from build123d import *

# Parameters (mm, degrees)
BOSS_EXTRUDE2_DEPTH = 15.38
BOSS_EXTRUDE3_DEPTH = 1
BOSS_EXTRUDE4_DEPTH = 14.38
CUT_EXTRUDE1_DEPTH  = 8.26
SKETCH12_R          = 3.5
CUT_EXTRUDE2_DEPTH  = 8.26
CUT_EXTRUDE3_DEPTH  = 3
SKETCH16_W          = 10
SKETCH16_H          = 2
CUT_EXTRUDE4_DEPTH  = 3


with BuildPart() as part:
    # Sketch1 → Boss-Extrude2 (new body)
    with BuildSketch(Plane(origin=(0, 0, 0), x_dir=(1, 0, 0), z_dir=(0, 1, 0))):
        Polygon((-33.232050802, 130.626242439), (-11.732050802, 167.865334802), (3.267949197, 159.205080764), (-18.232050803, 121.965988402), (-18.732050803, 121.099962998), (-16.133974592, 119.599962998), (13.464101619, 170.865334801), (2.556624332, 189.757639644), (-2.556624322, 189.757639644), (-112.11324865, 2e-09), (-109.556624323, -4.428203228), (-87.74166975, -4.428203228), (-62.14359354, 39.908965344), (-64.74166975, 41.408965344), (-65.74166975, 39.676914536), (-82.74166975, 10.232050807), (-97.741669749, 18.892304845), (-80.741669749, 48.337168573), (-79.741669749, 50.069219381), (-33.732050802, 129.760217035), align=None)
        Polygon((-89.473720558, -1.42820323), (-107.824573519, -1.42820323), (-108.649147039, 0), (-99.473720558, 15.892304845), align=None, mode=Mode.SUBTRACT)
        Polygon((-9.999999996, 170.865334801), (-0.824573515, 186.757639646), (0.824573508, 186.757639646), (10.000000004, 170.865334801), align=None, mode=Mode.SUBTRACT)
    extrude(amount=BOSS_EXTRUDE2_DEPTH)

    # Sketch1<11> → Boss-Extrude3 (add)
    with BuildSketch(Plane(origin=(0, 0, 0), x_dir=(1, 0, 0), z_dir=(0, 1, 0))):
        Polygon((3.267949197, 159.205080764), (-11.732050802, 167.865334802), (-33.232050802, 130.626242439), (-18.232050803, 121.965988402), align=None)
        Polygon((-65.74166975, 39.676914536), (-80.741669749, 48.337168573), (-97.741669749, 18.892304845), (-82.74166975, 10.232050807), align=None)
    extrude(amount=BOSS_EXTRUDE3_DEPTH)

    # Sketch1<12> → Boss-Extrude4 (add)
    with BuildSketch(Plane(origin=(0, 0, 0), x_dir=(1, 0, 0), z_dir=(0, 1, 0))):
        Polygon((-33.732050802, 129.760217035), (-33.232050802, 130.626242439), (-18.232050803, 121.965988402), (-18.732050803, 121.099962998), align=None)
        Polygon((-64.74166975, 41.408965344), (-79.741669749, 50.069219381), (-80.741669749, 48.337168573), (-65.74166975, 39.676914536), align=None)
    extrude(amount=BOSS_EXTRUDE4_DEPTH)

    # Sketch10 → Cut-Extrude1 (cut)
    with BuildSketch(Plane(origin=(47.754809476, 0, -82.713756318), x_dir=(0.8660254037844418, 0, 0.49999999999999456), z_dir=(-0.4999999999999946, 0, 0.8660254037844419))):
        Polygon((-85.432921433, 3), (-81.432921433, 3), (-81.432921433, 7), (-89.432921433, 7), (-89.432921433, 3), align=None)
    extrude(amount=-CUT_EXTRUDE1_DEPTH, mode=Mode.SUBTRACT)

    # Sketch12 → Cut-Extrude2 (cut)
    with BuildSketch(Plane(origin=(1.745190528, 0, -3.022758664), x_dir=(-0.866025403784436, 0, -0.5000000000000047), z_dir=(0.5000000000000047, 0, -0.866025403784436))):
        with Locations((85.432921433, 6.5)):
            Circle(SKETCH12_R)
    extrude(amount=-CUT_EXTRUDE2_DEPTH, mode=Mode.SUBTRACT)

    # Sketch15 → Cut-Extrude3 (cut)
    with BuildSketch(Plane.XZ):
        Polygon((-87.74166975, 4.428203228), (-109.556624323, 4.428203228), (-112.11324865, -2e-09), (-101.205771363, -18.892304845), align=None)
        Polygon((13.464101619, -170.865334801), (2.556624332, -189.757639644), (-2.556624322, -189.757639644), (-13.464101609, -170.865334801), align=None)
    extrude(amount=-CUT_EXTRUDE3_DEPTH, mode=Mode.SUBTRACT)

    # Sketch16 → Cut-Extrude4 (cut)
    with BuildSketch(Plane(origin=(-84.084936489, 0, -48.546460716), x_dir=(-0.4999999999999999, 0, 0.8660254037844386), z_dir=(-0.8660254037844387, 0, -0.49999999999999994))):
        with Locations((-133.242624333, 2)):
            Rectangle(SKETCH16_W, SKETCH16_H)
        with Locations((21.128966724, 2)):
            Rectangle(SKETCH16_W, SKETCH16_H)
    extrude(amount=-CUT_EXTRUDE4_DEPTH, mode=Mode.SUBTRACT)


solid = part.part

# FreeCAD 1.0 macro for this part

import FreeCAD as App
import Part
import Sketcher
Q = App.Units.Quantity

doc = App.newDocument("Part")
body = doc.addObject("PartDesign::Body", "Body")

sketch1 = doc.addObject("Sketcher::SketchObject", "Sketch")
body.addObject(sketch1)
sketch1.AttachmentSupport = (doc.XZ_Plane, [""])
sketch1.MapMode = "FlatFace"
sketch1.addGeometry(Part.LineSegment(App.Vector(-33.2, -130.6, 0), App.Vector(-11.7, -167.9, 0)), False)
sketch1.addGeometry(Part.LineSegment(App.Vector(-11.7, -167.9, 0), App.Vector(3.3, -159.2, 0)), False)
sketch1.addGeometry(Part.LineSegment(App.Vector(3.3, -159.2, 0), App.Vector(-18.2, -122, 0)), False)
sketch1.addGeometry(Part.LineSegment(App.Vector(-18.2, -122, 0), App.Vector(-18.7, -121.1, 0)), False)
sketch1.addGeometry(Part.LineSegment(App.Vector(-18.7, -121.1, 0), App.Vector(-16.1, -119.6, 0)), False)
sketch1.addGeometry(Part.LineSegment(App.Vector(-16.1, -119.6, 0), App.Vector(13.5, -170.9, 0)), False)
sketch1.addGeometry(Part.LineSegment(App.Vector(13.5, -170.9, 0), App.Vector(2.6, -189.8, 0)), False)
sketch1.addGeometry(Part.LineSegment(App.Vector(2.6, -189.8, 0), App.Vector(-2.6, -189.8, 0)), False)
sketch1.addGeometry(Part.LineSegment(App.Vector(-2.6, -189.8, 0), App.Vector(-112.1, 0, 0)), False)
sketch1.addGeometry(Part.LineSegment(App.Vector(-112.1, 0, 0), App.Vector(-109.6, 4.4, 0)), False)
sketch1.addGeometry(Part.LineSegment(App.Vector(-109.6, 4.4, 0), App.Vector(-87.7, 4.4, 0)), False)
sketch1.addGeometry(Part.LineSegment(App.Vector(-87.7, 4.4, 0), App.Vector(-62.1, -39.9, 0)), False)
sketch1.addGeometry(Part.LineSegment(App.Vector(-62.1, -39.9, 0), App.Vector(-64.7, -41.4, 0)), False)
sketch1.addGeometry(Part.LineSegment(App.Vector(-64.7, -41.4, 0), App.Vector(-65.7, -39.7, 0)), False)
sketch1.addGeometry(Part.LineSegment(App.Vector(-65.7, -39.7, 0), App.Vector(-82.7, -10.2, 0)), False)
sketch1.addGeometry(Part.LineSegment(App.Vector(-82.7, -10.2, 0), App.Vector(-97.7, -18.9, 0)), False)
sketch1.addGeometry(Part.LineSegment(App.Vector(-97.7, -18.9, 0), App.Vector(-80.7, -48.3, 0)), False)
sketch1.addGeometry(Part.LineSegment(App.Vector(-80.7, -48.3, 0), App.Vector(-79.7, -50.1, 0)), False)
sketch1.addGeometry(Part.LineSegment(App.Vector(-79.7, -50.1, 0), App.Vector(-33.7, -129.8, 0)), False)
sketch1.addGeometry(Part.LineSegment(App.Vector(-33.7, -129.8, 0), App.Vector(-33.2, -130.6, 0)), False)
sketch1.addGeometry(Part.LineSegment(App.Vector(-99.5, -15.9, 0), App.Vector(-89.5, 1.4, 0)), False)
sketch1.addGeometry(Part.LineSegment(App.Vector(-89.5, 1.4, 0), App.Vector(-107.8, 1.4, 0)), False)
sketch1.addGeometry(Part.LineSegment(App.Vector(-107.8, 1.4, 0), App.Vector(-108.6, 0, 0)), False)
sketch1.addGeometry(Part.LineSegment(App.Vector(-108.6, 0, 0), App.Vector(-99.5, -15.9, 0)), False)
sketch1.addGeometry(Part.LineSegment(App.Vector(10, -170.9, 0), App.Vector(-10, -170.9, 0)), False)
sketch1.addGeometry(Part.LineSegment(App.Vector(-10, -170.9, 0), App.Vector(-0.8, -186.8, 0)), False)
sketch1.addGeometry(Part.LineSegment(App.Vector(-0.8, -186.8, 0), App.Vector(0.8, -186.8, 0)), False)
sketch1.addGeometry(Part.LineSegment(App.Vector(0.8, -186.8, 0), App.Vector(10, -170.9, 0)), False)
sketch1.addConstraint(Sketcher.Constraint("Coincident", 0, 2, 1, 1))
sketch1.addConstraint(Sketcher.Constraint("Coincident", 1, 2, 2, 1))
sketch1.addConstraint(Sketcher.Constraint("Coincident", 2, 2, 3, 1))
sketch1.addConstraint(Sketcher.Constraint("Coincident", 3, 2, 4, 1))
sketch1.addConstraint(Sketcher.Constraint("Coincident", 4, 2, 5, 1))
sketch1.addConstraint(Sketcher.Constraint("Coincident", 5, 2, 6, 1))
sketch1.addConstraint(Sketcher.Constraint("Coincident", 6, 2, 7, 1))
sketch1.addConstraint(Sketcher.Constraint("Coincident", 7, 2, 8, 1))
sketch1.addConstraint(Sketcher.Constraint("Coincident", 8, 2, 9, 1))
sketch1.addConstraint(Sketcher.Constraint("Coincident", 9, 2, 10, 1))
sketch1.addConstraint(Sketcher.Constraint("Coincident", 10, 2, 11, 1))
sketch1.addConstraint(Sketcher.Constraint("Coincident", 11, 2, 12, 1))
sketch1.addConstraint(Sketcher.Constraint("Coincident", 12, 2, 13, 1))
sketch1.addConstraint(Sketcher.Constraint("Coincident", 13, 2, 14, 1))
sketch1.addConstraint(Sketcher.Constraint("Coincident", 14, 2, 15, 1))
sketch1.addConstraint(Sketcher.Constraint("Coincident", 15, 2, 16, 1))
sketch1.addConstraint(Sketcher.Constraint("Coincident", 16, 2, 17, 1))
sketch1.addConstraint(Sketcher.Constraint("Coincident", 17, 2, 18, 1))
sketch1.addConstraint(Sketcher.Constraint("Coincident", 18, 2, 19, 1))
sketch1.addConstraint(Sketcher.Constraint("Coincident", 19, 2, 0, 1))
sketch1.addConstraint(Sketcher.Constraint("Coincident", 20, 2, 21, 1))
sketch1.addConstraint(Sketcher.Constraint("Coincident", 21, 2, 22, 1))
sketch1.addConstraint(Sketcher.Constraint("Coincident", 22, 2, 23, 1))
sketch1.addConstraint(Sketcher.Constraint("Coincident", 23, 2, 20, 1))
sketch1.addConstraint(Sketcher.Constraint("Coincident", 24, 2, 25, 1))
sketch1.addConstraint(Sketcher.Constraint("Coincident", 25, 2, 26, 1))
sketch1.addConstraint(Sketcher.Constraint("Coincident", 26, 2, 27, 1))
sketch1.addConstraint(Sketcher.Constraint("Coincident", 27, 2, 24, 1))
sketch1.addConstraint(Sketcher.Constraint("Horizontal", 7))
sketch1.addConstraint(Sketcher.Constraint("Horizontal", 10))
sketch1.addConstraint(Sketcher.Constraint("Horizontal", 21))
sketch1.addConstraint(Sketcher.Constraint("Horizontal", 24))
sketch1.addConstraint(Sketcher.Constraint("Horizontal", 26))
sketch1.addConstraint(Sketcher.Constraint("PointOnObject", 8, 2, -1))
sketch1.addConstraint(Sketcher.Constraint("PointOnObject", 22, 2, -1))
sketch1.addConstraint(Sketcher.Constraint("Perpendicular", 0, 1))
sketch1.addConstraint(Sketcher.Constraint("Perpendicular", 1, 2))
sketch1.addConstraint(Sketcher.Constraint("Parallel", 2, 3))
sketch1.addConstraint(Sketcher.Constraint("Perpendicular", 3, 4))
sketch1.addConstraint(Sketcher.Constraint("Perpendicular", 4, 5))
sketch1.addConstraint(Sketcher.Constraint("Parallel", 5, 8))
sketch1.addConstraint(Sketcher.Constraint("Parallel", 6, 9))
sketch1.addConstraint(Sketcher.Constraint("Parallel", 8, 11))
sketch1.addConstraint(Sketcher.Constraint("Perpendicular", 11, 12))
sketch1.addConstraint(Sketcher.Constraint("Perpendicular", 12, 13))
sketch1.addConstraint(Sketcher.Constraint("Parallel", 13, 14))
sketch1.addConstraint(Sketcher.Constraint("Perpendicular", 14, 15))
sketch1.addConstraint(Sketcher.Constraint("Perpendicular", 15, 16))
sketch1.addConstraint(Sketcher.Constraint("Parallel", 16, 17))
sketch1.addConstraint(Sketcher.Constraint("Parallel", 17, 18))
sketch1.addConstraint(Sketcher.Constraint("Parallel", 18, 19))
sketch1.addConstraint(Sketcher.Constraint("Parallel", 9, 20))
sketch1.addConstraint(Sketcher.Constraint("Parallel", 20, 22))
sketch1.addConstraint(Sketcher.Constraint("Parallel", 19, 23))
sketch1.addConstraint(Sketcher.Constraint("Parallel", 23, 25))
sketch1.addConstraint(Sketcher.Constraint("Parallel", 22, 27))
sketch1.addConstraint(Sketcher.Constraint("Horizontal", 5, 2, 24, 2))
sketch1.addConstraint(Sketcher.Constraint("Equal", 0, 2))
sketch1.addConstraint(Sketcher.Constraint("Equal", 4, 12))
sketch1.addConstraint(Sketcher.Constraint("Equal", 1, 15))
sketch1.addConstraint(Sketcher.Constraint("Equal", 14, 16))
sketch1.addConstraint(Sketcher.Constraint("Equal", 13, 17))
sketch1.addConstraint(Sketcher.Constraint("Equal", 3, 19))
sketch1.addConstraint(Sketcher.Constraint("Equal", 23, 25))
sketch1.addConstraint(Sketcher.Constraint("Equal", 25, 27))
sketch1.addConstraint(Sketcher.Constraint("DistanceX", 24, 2, 24, 1, 20.0))
sketch1.addConstraint(Sketcher.Constraint("Angle", 0, Q("-60 deg")))
sketch1.addConstraint(Sketcher.Constraint("Distance", 0, 43.0))
sketch1.addConstraint(Sketcher.Constraint("Distance", 3, 1.0))
sketch1.addConstraint(Sketcher.Constraint("Distance", 4, 3.0))
sketch1.addConstraint(Sketcher.Constraint("Distance", 13, 2.0))
sketch1.addConstraint(Sketcher.Constraint("Distance", 14, 34.0))
sketch1.addConstraint(Sketcher.Constraint("Distance", 20, 20.0))
sketch1.addConstraint(Sketcher.Constraint("DistanceX", 24, 2, -1, 1, 10.0))
sketch1.addConstraint(Sketcher.Constraint("DistanceX", 0, 2, 1, 2, 15.0))
sketch1.addConstraint(Sketcher.Constraint("DistanceY", 5, 2, 0, 2, 3.0))
sketch1.addConstraint(Sketcher.Constraint("DistanceX", 10, 2, 12, 2, 23.0))
sketch1.addConstraint(Sketcher.Constraint("DistanceY", 20, 2, 10, 2, 3.0))
sketch1.addConstraint(Sketcher.Constraint("DistanceY", 7, 2, 25, 2, 3.0))
sketch1.addConstraint(Sketcher.Constraint("DistanceX", 7, 2, 7, 1, 5.113249))
sketch1.addConstraint(Sketcher.Constraint("DistanceX", -1, 1, 5, 2, 13.464102))
sketch1.addConstraint(Sketcher.Constraint("DistanceX", 8, 2, 22, 2, 3.464102))
sketch1.addConstraint(Sketcher.Constraint("Distance", 8, 219.113249))
sketch1.addConstraint(Sketcher.Constraint("Distance", 9, 5.113249))
pad1 = doc.addObject("PartDesign::Pad", "Pad")
body.addObject(pad1)
pad1.Profile = sketch1
pad1.Length = 15.38
pad1.Reversed = True

sketch2 = doc.addObject("Sketcher::SketchObject", "Sketch001")
body.addObject(sketch2)
sketch2.AttachmentSupport = (doc.XZ_Plane, [""])
sketch2.MapMode = "FlatFace"
sketch2.addGeometry(Part.LineSegment(App.Vector(3, -159, 0), App.Vector(-12, -168, 0)), False)
sketch2.addGeometry(Part.LineSegment(App.Vector(-12, -168, 0), App.Vector(-33, -131, 0)), False)
sketch2.addGeometry(Part.LineSegment(App.Vector(-33, -131, 0), App.Vector(-18, -122, 0)), False)
sketch2.addGeometry(Part.LineSegment(App.Vector(-18, -122, 0), App.Vector(3, -159, 0)), False)
sketch2.addGeometry(Part.LineSegment(App.Vector(-66, -40, 0), App.Vector(-81, -48, 0)), False)
sketch2.addGeometry(Part.LineSegment(App.Vector(-81, -48, 0), App.Vector(-98, -19, 0)), False)
sketch2.addGeometry(Part.LineSegment(App.Vector(-98, -19, 0), App.Vector(-83, -10, 0)), False)
sketch2.addGeometry(Part.LineSegment(App.Vector(-83, -10, 0), App.Vector(-66, -40, 0)), False)
sketch2.addConstraint(Sketcher.Constraint("Coincident", 0, 2, 1, 1))
sketch2.addConstraint(Sketcher.Constraint("Coincident", 1, 2, 2, 1))
sketch2.addConstraint(Sketcher.Constraint("Coincident", 2, 2, 3, 1))
sketch2.addConstraint(Sketcher.Constraint("Coincident", 3, 2, 0, 1))
sketch2.addConstraint(Sketcher.Constraint("Coincident", 4, 2, 5, 1))
sketch2.addConstraint(Sketcher.Constraint("Coincident", 5, 2, 6, 1))
sketch2.addConstraint(Sketcher.Constraint("Coincident", 6, 2, 7, 1))
sketch2.addConstraint(Sketcher.Constraint("Coincident", 7, 2, 4, 1))
sketch2.addConstraint(Sketcher.Constraint("Perpendicular", 0, 1))
sketch2.addConstraint(Sketcher.Constraint("Perpendicular", 1, 2))
sketch2.addConstraint(Sketcher.Constraint("Perpendicular", 2, 3))
sketch2.addConstraint(Sketcher.Constraint("Perpendicular", 3, 4))
sketch2.addConstraint(Sketcher.Constraint("Perpendicular", 4, 5))
sketch2.addConstraint(Sketcher.Constraint("Perpendicular", 5, 6))
sketch2.addConstraint(Sketcher.Constraint("Perpendicular", 6, 7))
sketch2.addConstraint(Sketcher.Constraint("Equal", 2, 4))
sketch2.addConstraint(Sketcher.Constraint("Angle", 0, Q("-150 deg")))
sketch2.addConstraint(Sketcher.Constraint("Distance", 1, 43.0))
sketch2.addConstraint(Sketcher.Constraint("Distance", 5, 34.0))
sketch2.addConstraint(Sketcher.Constraint("DistanceX", 1, 2, 2, 2, 15.0))
sketch2.addConstraint(Sketcher.Constraint("DistanceX", 0, 2, -1, 1, 11.732051))
sketch2.addConstraint(Sketcher.Constraint("DistanceY", 2, 2, -1, 1, 121.965988))
sketch2.addConstraint(Sketcher.Constraint("DistanceX", 4, 2, -1, 1, 80.74167))
sketch2.addConstraint(Sketcher.Constraint("DistanceY", 4, 2, -1, 1, 48.337169))
pad2 = doc.addObject("PartDesign::Pad", "Pad001")
body.addObject(pad2)
pad2.Profile = sketch2
pad2.Length = 1
pad2.Reversed = True

sketch3 = doc.addObject("Sketcher::SketchObject", "Sketch002")
body.addObject(sketch3)
sketch3.AttachmentSupport = (doc.XZ_Plane, [""])
sketch3.MapMode = "FlatFace"
sketch3.addGeometry(Part.LineSegment(App.Vector(-33.2, -130.6, 0), App.Vector(-33.7, -129.8, 0)), False)
sketch3.addGeometry(Part.LineSegment(App.Vector(-33.7, -129.8, 0), App.Vector(-18.7, -121.1, 0)), False)
sketch3.addGeometry(Part.LineSegment(App.Vector(-18.7, -121.1, 0), App.Vector(-18.2, -122, 0)), False)
sketch3.addGeometry(Part.LineSegment(App.Vector(-18.2, -122, 0), App.Vector(-33.2, -130.6, 0)), False)
sketch3.addGeometry(Part.LineSegment(App.Vector(-64.7, -41.4, 0), App.Vector(-79.7, -50.1, 0)), False)
sketch3.addGeometry(Part.LineSegment(App.Vector(-79.7, -50.1, 0), App.Vector(-80.7, -48.3, 0)), False)
sketch3.addGeometry(Part.LineSegment(App.Vector(-80.7, -48.3, 0), App.Vector(-65.7, -39.7, 0)), False)
sketch3.addGeometry(Part.LineSegment(App.Vector(-65.7, -39.7, 0), App.Vector(-64.7, -41.4, 0)), False)
sketch3.addConstraint(Sketcher.Constraint("Coincident", 0, 2, 1, 1))
sketch3.addConstraint(Sketcher.Constraint("Coincident", 1, 2, 2, 1))
sketch3.addConstraint(Sketcher.Constraint("Coincident", 2, 2, 3, 1))
sketch3.addConstraint(Sketcher.Constraint("Coincident", 3, 2, 0, 1))
sketch3.addConstraint(Sketcher.Constraint("Coincident", 4, 2, 5, 1))
sketch3.addConstraint(Sketcher.Constraint("Coincident", 5, 2, 6, 1))
sketch3.addConstraint(Sketcher.Constraint("Coincident", 6, 2, 7, 1))
sketch3.addConstraint(Sketcher.Constraint("Coincident", 7, 2, 4, 1))
sketch3.addConstraint(Sketcher.Constraint("Perpendicular", 0, 1))
sketch3.addConstraint(Sketcher.Constraint("Perpendicular", 1, 2))
sketch3.addConstraint(Sketcher.Constraint("Perpendicular", 2, 3))
sketch3.addConstraint(Sketcher.Constraint("Parallel", 3, 4))
sketch3.addConstraint(Sketcher.Constraint("Perpendicular", 4, 5))
sketch3.addConstraint(Sketcher.Constraint("Perpendicular", 5, 6))
sketch3.addConstraint(Sketcher.Constraint("Perpendicular", 6, 7))
sketch3.addConstraint(Sketcher.Constraint("Equal", 3, 4))
sketch3.addConstraint(Sketcher.Constraint("Angle", 0, Q("120 deg")))
sketch3.addConstraint(Sketcher.Constraint("Distance", 0, 1.0))
sketch3.addConstraint(Sketcher.Constraint("Distance", 5, 2.0))
sketch3.addConstraint(Sketcher.Constraint("DistanceX", 0, 2, 1, 2, 15.0))
sketch3.addConstraint(Sketcher.Constraint("DistanceX", 0, 2, -1, 1, 33.732051))
sketch3.addConstraint(Sketcher.Constraint("DistanceY", 2, 2, -1, 1, 121.965988))
sketch3.addConstraint(Sketcher.Constraint("DistanceX", 4, 2, -1, 1, 79.74167))
sketch3.addConstraint(Sketcher.Constraint("DistanceY", 4, 2, -1, 1, 50.069219))
pad3 = doc.addObject("PartDesign::Pad", "Pad002")
body.addObject(pad3)
pad3.Profile = sketch3
pad3.Length = 14.38
pad3.Reversed = True

sketch4 = doc.addObject("Sketcher::SketchObject", "Sketch003")
body.addObject(sketch4)
sketch4.Placement = App.Placement(App.Vector(47.754809, 0, -82.713756), App.Rotation(App.Vector(0.866025404, 0, 0.5), App.Vector(0, 1, 0), App.Vector(-0.5, 0, 0.866025404), "ZXY"))
sketch4.addGeometry(Part.LineSegment(App.Vector(-81.4, 3, 0), App.Vector(-81.4, 7, 0)), False)
sketch4.addGeometry(Part.LineSegment(App.Vector(-81.4, 7, 0), App.Vector(-89.4, 7, 0)), False)
sketch4.addGeometry(Part.LineSegment(App.Vector(-89.4, 7, 0), App.Vector(-89.4, 3, 0)), False)
sketch4.addGeometry(Part.LineSegment(App.Vector(-89.4, 3, 0), App.Vector(-81.4, 3, 0)), False)
sketch4.addConstraint(Sketcher.Constraint("Coincident", 0, 2, 1, 1))
sketch4.addConstraint(Sketcher.Constraint("Coincident", 1, 2, 2, 1))
sketch4.addConstraint(Sketcher.Constraint("Coincident", 2, 2, 3, 1))
sketch4.addConstraint(Sketcher.Constraint("Coincident", 3, 2, 0, 1))
sketch4.addConstraint(Sketcher.Constraint("Vertical", 0))
sketch4.addConstraint(Sketcher.Constraint("Horizontal", 1))
sketch4.addConstraint(Sketcher.Constraint("Vertical", 2))
sketch4.addConstraint(Sketcher.Constraint("Horizontal", 3))
sketch4.addConstraint(Sketcher.Constraint("DistanceX", 1, 2, 1, 1, 8.0))
sketch4.addConstraint(Sketcher.Constraint("DistanceY", 0, 1, 0, 2, 4.0))
sketch4.addConstraint(Sketcher.Constraint("DistanceY", -1, 1, 0, 2, 7.0))
sketch4.addConstraint(Sketcher.Constraint("DistanceX", 0, 2, -1, 1, 81.432921))
pocket1 = doc.addObject("PartDesign::Pocket", "Pocket")
body.addObject(pocket1)
pocket1.Profile = sketch4
pocket1.Length = 8.26

sketch5 = doc.addObject("Sketcher::SketchObject", "Sketch004")
body.addObject(sketch5)
sketch5.Placement = App.Placement(App.Vector(1.745191, 0, -3.022759), App.Rotation(App.Vector(-0.866025404, 0, -0.5), App.Vector(0, 1, 0), App.Vector(0.5, 0, -0.866025404), "ZXY"))
sketch5.addGeometry(Part.Circle(App.Vector(85.4, 6.5, 0), App.Vector(0, 0, 1), 3.5), False)
sketch5.addConstraint(Sketcher.Constraint("Diameter", 0, 7.0))
sketch5.addConstraint(Sketcher.Constraint("DistanceY", -1, 1, 0, 3, 6.5))
sketch5.addConstraint(Sketcher.Constraint("DistanceX", -1, 1, 0, 3, 85.432921))
pocket2 = doc.addObject("PartDesign::Pocket", "Pocket001")
body.addObject(pocket2)
pocket2.Profile = sketch5
pocket2.Length = 8.26

sketch6 = doc.addObject("Sketcher::SketchObject", "Sketch005")
body.addObject(sketch6)
sketch6.AttachmentSupport = (doc.XZ_Plane, [""])
sketch6.MapMode = "FlatFace"
sketch6.addGeometry(Part.LineSegment(App.Vector(-88, 4, 0), App.Vector(-110, 4, 0)), False)
sketch6.addGeometry(Part.LineSegment(App.Vector(-110, 4, 0), App.Vector(-112, 0, 0)), False)
sketch6.addGeometry(Part.LineSegment(App.Vector(-112, 0, 0), App.Vector(-101, -19, 0)), False)
sketch6.addGeometry(Part.LineSegment(App.Vector(-101, -19, 0), App.Vector(-88, 4, 0)), False)
sketch6.addGeometry(Part.LineSegment(App.Vector(3, -190, 0), App.Vector(13, -171, 0)), False)
sketch6.addGeometry(Part.LineSegment(App.Vector(13, -171, 0), App.Vector(-13, -171, 0)), False)
sketch6.addGeometry(Part.LineSegment(App.Vector(-13, -171, 0), App.Vector(-3, -190, 0)), False)
sketch6.addGeometry(Part.LineSegment(App.Vector(-3, -190, 0), App.Vector(3, -190, 0)), False)
sketch6.addConstraint(Sketcher.Constraint("Coincident", 0, 2, 1, 1))
sketch6.addConstraint(Sketcher.Constraint("Coincident", 1, 2, 2, 1))
sketch6.addConstraint(Sketcher.Constraint("Coincident", 2, 2, 3, 1))
sketch6.addConstraint(Sketcher.Constraint("Coincident", 3, 2, 0, 1))
sketch6.addConstraint(Sketcher.Constraint("Coincident", 4, 2, 5, 1))
sketch6.addConstraint(Sketcher.Constraint("Coincident", 5, 2, 6, 1))
sketch6.addConstraint(Sketcher.Constraint("Coincident", 6, 2, 7, 1))
sketch6.addConstraint(Sketcher.Constraint("Coincident", 7, 2, 4, 1))
sketch6.addConstraint(Sketcher.Constraint("Horizontal", 0))
sketch6.addConstraint(Sketcher.Constraint("Horizontal", 5))
sketch6.addConstraint(Sketcher.Constraint("Horizontal", 7))
sketch6.addConstraint(Sketcher.Constraint("PointOnObject", 1, 2, -1))
sketch6.addConstraint(Sketcher.Constraint("Parallel", 1, 3))
sketch6.addConstraint(Sketcher.Constraint("Parallel", 3, 4))
sketch6.addConstraint(Sketcher.Constraint("Parallel", 2, 6))
sketch6.addConstraint(Sketcher.Constraint("Equal", 2, 4))
sketch6.addConstraint(Sketcher.Constraint("Equal", 4, 6))
sketch6.addConstraint(Sketcher.Constraint("Angle", 1, Q("-120 deg")))
sketch6.addConstraint(Sketcher.Constraint("DistanceX", 7, 1, 7, 2, 5.113249))
sketch6.addConstraint(Sketcher.Constraint("DistanceX", -1, 1, 4, 2, 13.464102))
sketch6.addConstraint(Sketcher.Constraint("DistanceX", 5, 2, -1, 1, 13.464102))
sketch6.addConstraint(Sketcher.Constraint("DistanceX", 2, 2, 3, 2, 13.464102))
sketch6.addConstraint(Sketcher.Constraint("DistanceX", 1, 2, -1, 1, 112.113249))
sketch6.addConstraint(Sketcher.Constraint("DistanceY", 6, 2, -1, 1, 189.75764))
pocket3 = doc.addObject("PartDesign::Pocket", "Pocket002")
body.addObject(pocket3)
pocket3.Profile = sketch6
pocket3.Length = 3

sketch7 = doc.addObject("Sketcher::SketchObject", "Sketch006")
body.addObject(sketch7)
sketch7.Placement = App.Placement(App.Vector(-84.084936, 0, -48.546461), App.Rotation(App.Vector(-0.5, 0, 0.866025404), App.Vector(0, 1, 0), App.Vector(-0.866025404, 0, -0.5), "ZXY"))
sketch7.addGeometry(Part.LineSegment(App.Vector(-138.2, 3, 0), App.Vector(-138.2, 1, 0)), False)
sketch7.addGeometry(Part.LineSegment(App.Vector(-138.2, 1, 0), App.Vector(-128.2, 1, 0)), False)
sketch7.addGeometry(Part.LineSegment(App.Vector(-128.2, 1, 0), App.Vector(-128.2, 3, 0)), False)
sketch7.addGeometry(Part.LineSegment(App.Vector(-128.2, 3, 0), App.Vector(-138.2, 3, 0)), False)
sketch7.addGeometry(Part.LineSegment(App.Vector(16.1, 3, 0), App.Vector(16.1, 1, 0)), False)
sketch7.addGeometry(Part.LineSegment(App.Vector(16.1, 1, 0), App.Vector(26.1, 1, 0)), False)
sketch7.addGeometry(Part.LineSegment(App.Vector(26.1, 1, 0), App.Vector(26.1, 3, 0)), False)
sketch7.addGeometry(Part.LineSegment(App.Vector(26.1, 3, 0), App.Vector(16.1, 3, 0)), False)
sketch7.addConstraint(Sketcher.Constraint("Coincident", 0, 2, 1, 1))
sketch7.addConstraint(Sketcher.Constraint("Coincident", 1, 2, 2, 1))
sketch7.addConstraint(Sketcher.Constraint("Coincident", 2, 2, 3, 1))
sketch7.addConstraint(Sketcher.Constraint("Coincident", 3, 2, 0, 1))
sketch7.addConstraint(Sketcher.Constraint("Coincident", 4, 2, 5, 1))
sketch7.addConstraint(Sketcher.Constraint("Coincident", 5, 2, 6, 1))
sketch7.addConstraint(Sketcher.Constraint("Coincident", 6, 2, 7, 1))
sketch7.addConstraint(Sketcher.Constraint("Coincident", 7, 2, 4, 1))
sketch7.addConstraint(Sketcher.Constraint("Vertical", 0))
sketch7.addConstraint(Sketcher.Constraint("Horizontal", 1))
sketch7.addConstraint(Sketcher.Constraint("Vertical", 2))
sketch7.addConstraint(Sketcher.Constraint("Horizontal", 3))
sketch7.addConstraint(Sketcher.Constraint("Vertical", 4))
sketch7.addConstraint(Sketcher.Constraint("Horizontal", 5))
sketch7.addConstraint(Sketcher.Constraint("Vertical", 6))
sketch7.addConstraint(Sketcher.Constraint("Horizontal", 7))
sketch7.addConstraint(Sketcher.Constraint("Horizontal", 1, 2, 4, 2))
sketch7.addConstraint(Sketcher.Constraint("Horizontal", 3, 2, 6, 2))
sketch7.addConstraint(Sketcher.Constraint("Equal", 3, 5))
sketch7.addConstraint(Sketcher.Constraint("DistanceX", 1, 1, 1, 2, 10.0))
sketch7.addConstraint(Sketcher.Constraint("DistanceY", 0, 2, 0, 1, 2.0))
sketch7.addConstraint(Sketcher.Constraint("DistanceY", -1, 1, 0, 2, 1.0))
sketch7.addConstraint(Sketcher.Constraint("DistanceX", 1, 2, 4, 2, 144.371591))
sketch7.addConstraint(Sketcher.Constraint("DistanceX", 0, 2, -1, 1, 138.242624))
pocket4 = doc.addObject("PartDesign::Pocket", "Pocket003")
body.addObject(pocket4)
pocket4.Profile = sketch7
pocket4.Length = 3

doc.recompute()
